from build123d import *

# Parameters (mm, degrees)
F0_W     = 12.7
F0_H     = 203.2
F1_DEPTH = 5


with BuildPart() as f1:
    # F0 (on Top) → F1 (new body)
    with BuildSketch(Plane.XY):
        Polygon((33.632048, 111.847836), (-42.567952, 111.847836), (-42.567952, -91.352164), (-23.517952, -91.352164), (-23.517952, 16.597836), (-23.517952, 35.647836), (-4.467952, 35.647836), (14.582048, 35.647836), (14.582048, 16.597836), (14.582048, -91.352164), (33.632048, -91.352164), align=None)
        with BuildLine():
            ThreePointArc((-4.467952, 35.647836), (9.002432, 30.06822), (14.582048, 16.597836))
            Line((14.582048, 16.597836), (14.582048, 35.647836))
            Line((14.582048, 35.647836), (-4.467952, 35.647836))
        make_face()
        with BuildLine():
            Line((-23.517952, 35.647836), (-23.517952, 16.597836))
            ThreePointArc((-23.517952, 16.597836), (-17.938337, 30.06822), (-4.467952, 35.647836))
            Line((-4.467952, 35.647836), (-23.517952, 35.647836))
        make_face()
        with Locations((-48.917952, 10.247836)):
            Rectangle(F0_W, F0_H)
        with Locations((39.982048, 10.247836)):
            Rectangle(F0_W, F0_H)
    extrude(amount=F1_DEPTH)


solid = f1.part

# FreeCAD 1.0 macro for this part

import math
import FreeCAD as App
import Part
import Sketcher
Q = App.Units.Quantity

doc = App.newDocument("Part")
body = doc.addObject("PartDesign::Body", "Body")

sketch1 = doc.addObject("Sketcher::SketchObject", "Sketch")
body.addObject(sketch1)
sketch1.AttachmentSupport = (doc.XY_Plane, [""])
sketch1.MapMode = "FlatFace"
sketch1.addGeometry([
    Part.LineSegment(App.Vector(-55, 112, 0), App.Vector(-55, -91, 0)),
    Part.LineSegment(App.Vector(-55, -91, 0), App.Vector(-24, -91, 0)),
    Part.LineSegment(App.Vector(-24, -91, 0), App.Vector(-24, 17, 0)),
    Part.ArcOfCircle(Part.Circle(App.Vector(-4, 17, 0), App.Vector(0, 0, 1), 19), math.radians(90), math.radians(180)),
    Part.ArcOfCircle(Part.Circle(App.Vector(-4, 17, 0), App.Vector(0, 0, 1), 19), math.radians(0), math.radians(90)),
    Part.LineSegment(App.Vector(15, 17, 0), App.Vector(15, -91, 0)),
    Part.LineSegment(App.Vector(15, -91, 0), App.Vector(46, -91, 0)),
    Part.LineSegment(App.Vector(46, -91, 0), App.Vector(46, 112, 0)),
    Part.LineSegment(App.Vector(46, 112, 0), App.Vector(-55, 112, 0)),
], False)
sketch1.addConstraint([
    Sketcher.Constraint("Coincident", 0, 2, 1, 1),
    Sketcher.Constraint("Coincident", 1, 2, 2, 1),
    Sketcher.Constraint("Tangent", 2, 2, 3, 2),
    Sketcher.Constraint("Tangent", 3, 1, 4, 2),
    Sketcher.Constraint("Tangent", 4, 1, 5, 1),
    Sketcher.Constraint("Coincident", 5, 2, 6, 1),
    Sketcher.Constraint("Coincident", 6, 2, 7, 1),
    Sketcher.Constraint("Coincident", 7, 2, 8, 1),
    Sketcher.Constraint("Coincident", 8, 2, 0, 1),
    Sketcher.Constraint("Vertical", 0),
    Sketcher.Constraint("Horizontal", 1),
    Sketcher.Constraint("Vertical", 2),
    Sketcher.Constraint("Vertical", 5),
    Sketcher.Constraint("Horizontal", 6),
    Sketcher.Constraint("Vertical", 7),
    Sketcher.Constraint("Horizontal", 8),
    Sketcher.Constraint("Equal", 3, 4),
    Sketcher.Constraint("Horizontal", 1, 2, 5, 2),
    Sketcher.Constraint("Vertical", 4, 3, 3, 1),
    Sketcher.Constraint("Equal", 1, 6),
    Sketcher.Constraint("DistanceX", 8, 2, 8, 1, Q("4 in")),
    Sketcher.Constraint("DistanceY", 0, 2, 0, 1, Q("8 in")),
    Sketcher.Constraint("Radius", 3, Q("0.75 in")),
    Sketcher.Constraint("DistanceY", 1, 2, 3, 1, Q("5 in")),
    Sketcher.Constraint("DistanceX", 3, 1, -1, 1, Q("4.467952 mm")),
    Sketcher.Constraint("DistanceY", -1, 1, 3, 3, Q("16.597837 mm")),
])
pad1 = doc.addObject("PartDesign::Pad", "Pad")
body.addObject(pad1)
pad1.Profile = sketch1
pad1.Length = 5

doc.recompute()
